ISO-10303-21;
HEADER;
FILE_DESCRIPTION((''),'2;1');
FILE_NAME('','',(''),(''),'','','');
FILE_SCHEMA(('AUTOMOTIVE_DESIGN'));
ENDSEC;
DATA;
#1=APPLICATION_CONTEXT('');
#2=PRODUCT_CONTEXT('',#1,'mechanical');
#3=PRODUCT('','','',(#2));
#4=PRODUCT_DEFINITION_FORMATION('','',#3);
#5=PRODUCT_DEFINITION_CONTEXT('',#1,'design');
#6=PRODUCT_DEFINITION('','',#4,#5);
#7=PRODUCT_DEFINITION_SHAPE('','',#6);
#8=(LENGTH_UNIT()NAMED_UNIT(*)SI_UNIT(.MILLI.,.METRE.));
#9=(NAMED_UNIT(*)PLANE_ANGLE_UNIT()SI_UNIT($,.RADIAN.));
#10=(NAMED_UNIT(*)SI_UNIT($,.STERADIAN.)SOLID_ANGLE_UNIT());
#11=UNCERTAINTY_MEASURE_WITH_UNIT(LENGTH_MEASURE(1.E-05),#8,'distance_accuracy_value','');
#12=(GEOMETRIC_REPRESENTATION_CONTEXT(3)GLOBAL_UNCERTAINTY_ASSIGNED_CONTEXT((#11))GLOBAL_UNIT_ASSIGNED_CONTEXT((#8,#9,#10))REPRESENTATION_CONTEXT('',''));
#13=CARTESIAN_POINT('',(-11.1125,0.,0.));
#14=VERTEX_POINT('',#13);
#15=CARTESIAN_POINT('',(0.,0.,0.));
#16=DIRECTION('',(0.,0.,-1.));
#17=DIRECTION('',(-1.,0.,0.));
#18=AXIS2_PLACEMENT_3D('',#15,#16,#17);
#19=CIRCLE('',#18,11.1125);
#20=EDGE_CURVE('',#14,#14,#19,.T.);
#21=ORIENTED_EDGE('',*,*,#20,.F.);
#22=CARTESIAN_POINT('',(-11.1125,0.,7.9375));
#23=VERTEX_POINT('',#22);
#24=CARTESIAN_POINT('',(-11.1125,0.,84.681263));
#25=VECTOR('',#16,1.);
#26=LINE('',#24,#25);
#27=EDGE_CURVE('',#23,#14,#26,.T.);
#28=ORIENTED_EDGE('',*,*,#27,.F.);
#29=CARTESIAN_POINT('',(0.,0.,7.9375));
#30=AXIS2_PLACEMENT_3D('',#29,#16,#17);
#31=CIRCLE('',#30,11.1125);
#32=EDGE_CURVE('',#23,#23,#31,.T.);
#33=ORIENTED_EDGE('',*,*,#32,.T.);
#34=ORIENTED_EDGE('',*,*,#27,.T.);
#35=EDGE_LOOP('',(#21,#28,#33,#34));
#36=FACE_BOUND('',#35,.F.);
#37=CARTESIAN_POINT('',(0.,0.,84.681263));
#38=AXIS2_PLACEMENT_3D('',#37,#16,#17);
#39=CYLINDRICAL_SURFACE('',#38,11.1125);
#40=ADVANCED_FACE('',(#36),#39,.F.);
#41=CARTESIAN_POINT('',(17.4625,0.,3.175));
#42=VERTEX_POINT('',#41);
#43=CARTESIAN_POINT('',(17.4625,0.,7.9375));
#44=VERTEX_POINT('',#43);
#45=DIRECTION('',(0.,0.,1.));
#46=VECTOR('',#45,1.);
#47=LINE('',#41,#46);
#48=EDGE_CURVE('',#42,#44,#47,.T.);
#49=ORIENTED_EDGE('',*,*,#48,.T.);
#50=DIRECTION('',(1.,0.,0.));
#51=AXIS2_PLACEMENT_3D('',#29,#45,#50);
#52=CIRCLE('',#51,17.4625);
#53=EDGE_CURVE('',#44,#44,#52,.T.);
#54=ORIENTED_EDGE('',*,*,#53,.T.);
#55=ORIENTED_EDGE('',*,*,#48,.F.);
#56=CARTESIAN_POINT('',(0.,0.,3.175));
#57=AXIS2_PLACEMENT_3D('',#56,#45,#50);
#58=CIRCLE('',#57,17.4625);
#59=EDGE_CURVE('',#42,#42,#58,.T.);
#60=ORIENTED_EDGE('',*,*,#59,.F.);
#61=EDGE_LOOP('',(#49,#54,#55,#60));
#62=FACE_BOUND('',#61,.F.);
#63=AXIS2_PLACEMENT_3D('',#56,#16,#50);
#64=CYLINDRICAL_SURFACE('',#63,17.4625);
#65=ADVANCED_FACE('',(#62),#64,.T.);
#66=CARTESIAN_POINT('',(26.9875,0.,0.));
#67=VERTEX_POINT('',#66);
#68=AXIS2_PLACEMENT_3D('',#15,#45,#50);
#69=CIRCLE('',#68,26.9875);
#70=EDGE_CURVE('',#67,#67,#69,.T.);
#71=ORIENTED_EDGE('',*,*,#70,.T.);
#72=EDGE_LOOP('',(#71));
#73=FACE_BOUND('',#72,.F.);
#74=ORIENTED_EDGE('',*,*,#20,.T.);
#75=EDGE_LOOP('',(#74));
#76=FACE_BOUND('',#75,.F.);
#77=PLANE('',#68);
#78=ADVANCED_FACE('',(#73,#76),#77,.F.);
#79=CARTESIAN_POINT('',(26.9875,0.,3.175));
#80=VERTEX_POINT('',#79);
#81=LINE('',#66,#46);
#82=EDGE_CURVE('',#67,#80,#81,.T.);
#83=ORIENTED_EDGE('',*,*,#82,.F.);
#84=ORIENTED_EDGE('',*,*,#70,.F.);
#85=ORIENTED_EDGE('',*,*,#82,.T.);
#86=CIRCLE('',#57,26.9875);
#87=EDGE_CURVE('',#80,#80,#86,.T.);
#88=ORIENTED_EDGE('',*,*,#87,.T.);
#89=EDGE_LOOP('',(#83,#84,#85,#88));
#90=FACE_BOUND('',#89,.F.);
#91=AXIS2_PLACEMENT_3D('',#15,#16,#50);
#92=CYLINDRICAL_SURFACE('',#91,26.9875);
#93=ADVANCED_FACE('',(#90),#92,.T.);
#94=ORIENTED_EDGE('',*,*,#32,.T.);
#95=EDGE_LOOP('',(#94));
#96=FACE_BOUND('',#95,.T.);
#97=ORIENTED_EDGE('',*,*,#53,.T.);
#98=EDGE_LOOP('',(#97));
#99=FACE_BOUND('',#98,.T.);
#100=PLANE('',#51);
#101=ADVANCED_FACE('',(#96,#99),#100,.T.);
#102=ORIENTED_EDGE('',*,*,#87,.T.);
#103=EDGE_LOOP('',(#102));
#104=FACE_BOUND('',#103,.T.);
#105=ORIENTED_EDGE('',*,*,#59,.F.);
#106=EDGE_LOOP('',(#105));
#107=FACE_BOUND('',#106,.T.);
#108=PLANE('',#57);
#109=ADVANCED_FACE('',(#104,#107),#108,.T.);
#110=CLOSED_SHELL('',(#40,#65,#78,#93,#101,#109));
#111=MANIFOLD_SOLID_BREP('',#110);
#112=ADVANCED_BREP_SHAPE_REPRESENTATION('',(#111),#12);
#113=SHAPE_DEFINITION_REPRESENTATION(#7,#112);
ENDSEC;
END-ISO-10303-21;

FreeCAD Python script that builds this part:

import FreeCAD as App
import Part
import Sketcher
Q = App.Units.Quantity

doc = App.newDocument("Part")
body = doc.addObject("PartDesign::Body", "Body")

# Sketch on XY plane
sketch1 = body.newObject("Sketcher::SketchObject", "Sketch")
sketch1.AttachmentSupport = (doc.getObject("XY_Plane"), [""])
sketch1.MapMode = "FlatFace"
sketch1.addGeometry(Part.Circle(App.Vector(0, 0, 0), App.Vector(0, 0, 1), 27), False)
sketch1.addConstraint([
    Sketcher.Constraint("Coincident", 0, 3, -1, 1),
    Sketcher.Constraint("Diameter", 0, Q("2.125 in")),
])
pad1 = body.newObject("PartDesign::Pad", "Pad")
pad1.Profile = sketch1
pad1.Length = Q("0.125 in")

# Sketch on XY plane
sketch2 = body.newObject("Sketcher::SketchObject", "Sketch001")
sketch2.AttachmentSupport = (doc.getObject("XY_Plane"), [""])
sketch2.MapMode = "FlatFace"
sketch2.AttachmentOffset = App.Placement(App.Vector(0, 0, 0.125 * 25.4), App.Rotation())
sketch2.addGeometry(Part.Circle(App.Vector(0, 0, 0), App.Vector(0, 0, 1), 17), False)
sketch2.addConstraint([
    Sketcher.Constraint("Coincident", 0, 3, -1, 1),
    Sketcher.Constraint("Diameter", 0, Q("1.375 in")),
])
pad2 = body.newObject("PartDesign::Pad", "Pad001")
pad2.Profile = sketch2
pad2.Length = Q("0.1875 in")

# Sketch on XY plane
sketch3 = body.newObject("Sketcher::SketchObject", "Sketch002")
sketch3.AttachmentSupport = (doc.getObject("XY_Plane"), [""])
sketch3.MapMode = "FlatFace"
sketch3.AttachmentOffset = App.Placement(App.Vector(0, 0, 0.3125 * 25.4), App.Rotation())
sketch3.addGeometry(Part.Circle(App.Vector(0, 0, 0), App.Vector(0, 0, 1), 11), False)
sketch3.addConstraint([
    Sketcher.Constraint("Coincident", 0, 3, -1, 1),
    Sketcher.Constraint("Diameter", 0, Q("0.875 in")),
])
doc.recompute()
hole = body.newObject("PartDesign::Hole", "Hole")
hole.Profile = sketch3
hole.ThreadType = "None"
hole.Diameter = Q("0.875 in")
hole.DepthType = "ThroughAll"

doc.recompute()
